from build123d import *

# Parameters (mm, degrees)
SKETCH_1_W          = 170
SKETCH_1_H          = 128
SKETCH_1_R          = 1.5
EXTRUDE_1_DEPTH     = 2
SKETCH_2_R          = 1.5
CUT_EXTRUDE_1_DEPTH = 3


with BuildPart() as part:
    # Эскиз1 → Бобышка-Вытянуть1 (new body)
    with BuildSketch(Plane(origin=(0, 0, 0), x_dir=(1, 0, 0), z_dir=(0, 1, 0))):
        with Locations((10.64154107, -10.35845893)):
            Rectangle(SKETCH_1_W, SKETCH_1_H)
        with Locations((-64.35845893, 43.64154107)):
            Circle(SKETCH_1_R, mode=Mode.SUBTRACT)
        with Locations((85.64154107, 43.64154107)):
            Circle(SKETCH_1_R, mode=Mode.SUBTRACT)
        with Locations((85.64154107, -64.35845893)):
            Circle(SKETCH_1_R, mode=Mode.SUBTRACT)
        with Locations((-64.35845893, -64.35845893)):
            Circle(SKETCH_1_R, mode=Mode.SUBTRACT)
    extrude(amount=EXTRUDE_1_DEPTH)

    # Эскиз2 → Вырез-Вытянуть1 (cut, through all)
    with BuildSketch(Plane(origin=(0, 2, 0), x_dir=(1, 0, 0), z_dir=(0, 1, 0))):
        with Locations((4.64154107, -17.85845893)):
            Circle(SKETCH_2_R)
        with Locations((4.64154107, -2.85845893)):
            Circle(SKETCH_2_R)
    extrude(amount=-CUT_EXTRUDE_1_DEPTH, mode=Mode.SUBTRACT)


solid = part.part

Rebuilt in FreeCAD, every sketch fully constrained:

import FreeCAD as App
import Part
import Sketcher
from FreeCAD import Vector

doc = App.newDocument("Part")
body = doc.addObject("PartDesign::Body", "Body")

sketch1 = body.newObject("Sketcher::SketchObject", "Sketch")
sketch1.AttachmentSupport = (doc.getObject("XZ_Plane"), [""])
sketch1.MapMode = "FlatFace"
sketch1.addGeometry([
    Part.LineSegment(Vector(-74.358459, -53.641541, 0), Vector(-74.358459, 74.358459, 0)),
    Part.LineSegment(Vector(-74.358459, 74.358459, 0), Vector(95.641541, 74.358459, 0)),
    Part.LineSegment(Vector(95.641541, 74.358459, 0), Vector(95.641541, -53.641541, 0)),
    Part.LineSegment(Vector(95.641541, -53.641541, 0), Vector(-74.358459, -53.641541, 0)),
    Part.Circle(Vector(-64.358459, 64.358459, 0), Vector(0, 0, 1), 1.5),
    Part.Circle(Vector(85.641541, 64.358459, 0), Vector(0, 0, 1), 1.5),
    Part.Circle(Vector(-64.358459, -43.641541, 0), Vector(0, 0, 1), 1.5),
    Part.Circle(Vector(85.641541, -43.641541, 0), Vector(0, 0, 1), 1.5),
], False)
sketch1.addConstraint([
    Sketcher.Constraint("Coincident", 0, 2, 1, 1),
    Sketcher.Constraint("Coincident", 1, 2, 2, 1),
    Sketcher.Constraint("Coincident", 2, 2, 3, 1),
    Sketcher.Constraint("Coincident", 3, 2, 0, 1),
    Sketcher.Constraint("Vertical", 0),
    Sketcher.Constraint("Horizontal", 1),
    Sketcher.Constraint("Vertical", 2),
    Sketcher.Constraint("Horizontal", 3),
    Sketcher.Constraint("Equal", 4, 5),
    Sketcher.Constraint("Equal", 5, 6),
    Sketcher.Constraint("Equal", 6, 7),
    Sketcher.Constraint("Horizontal", 4, 3, 5, 3),
    Sketcher.Constraint("Horizontal", 6, 3, 7, 3),
    Sketcher.Constraint("Vertical", 4, 3, 6, 3),
    Sketcher.Constraint("Vertical", 5, 3, 7, 3),
    Sketcher.Constraint("Diameter", 4, 3.0),
    Sketcher.Constraint("DistanceX", 1, 1, 1, 2, 170.0),
    Sketcher.Constraint("DistanceY", 0, 1, 0, 2, 128.0),
    Sketcher.Constraint("DistanceX", 4, 3, 5, 3, 150.0),
    Sketcher.Constraint("DistanceY", 6, 3, 4, 3, 108.0),
    Sketcher.Constraint("DistanceX", 0, 2, 4, 3, 10.0),
    Sketcher.Constraint("DistanceY", 4, 3, 0, 2, 10.0),
    Sketcher.Constraint("DistanceX", 4, 3, -1, 1, 64.358459),
    Sketcher.Constraint("DistanceY", -1, 1, 4, 3, 64.358459),
])
pad1 = body.newObject("PartDesign::Pad", "Pad")
pad1.Profile = sketch1
pad1.Length = 2
pad1.Reversed = True

sketch2 = body.newObject("Sketcher::SketchObject", "Sketch001")
sketch2.AttachmentSupport = (doc.getObject("XZ_Plane"), [""])
sketch2.MapMode = "FlatFace"
sketch2.AttachmentOffset = App.Placement(Vector(0, 0, -2), App.Rotation())
sketch2.addGeometry([
    Part.Circle(Vector(4.641541, 17.858459, 0), Vector(0, 0, 1), 1.5),
    Part.Circle(Vector(4.641541, 2.858459, 0), Vector(0, 0, 1), 1.5),
], False)
sketch2.addConstraint([
    Sketcher.Constraint("Equal", 0, 1),
    Sketcher.Constraint("Vertical", 0, 3, 1, 3),
    Sketcher.Constraint("Diameter", 0, 3.0),
    Sketcher.Constraint("DistanceY", 1, 3, 0, 3, 15.0),
    Sketcher.Constraint("DistanceX", -1, 1, 0, 3, 4.641541),
    Sketcher.Constraint("DistanceY", -1, 1, 0, 3, 17.858459),
])
pocket1 = body.newObject("PartDesign::Pocket", "Pocket")
pocket1.Profile = sketch2
pocket1.Type = "ThroughAll"
pocket1.Reversed = True

doc.recompute()
